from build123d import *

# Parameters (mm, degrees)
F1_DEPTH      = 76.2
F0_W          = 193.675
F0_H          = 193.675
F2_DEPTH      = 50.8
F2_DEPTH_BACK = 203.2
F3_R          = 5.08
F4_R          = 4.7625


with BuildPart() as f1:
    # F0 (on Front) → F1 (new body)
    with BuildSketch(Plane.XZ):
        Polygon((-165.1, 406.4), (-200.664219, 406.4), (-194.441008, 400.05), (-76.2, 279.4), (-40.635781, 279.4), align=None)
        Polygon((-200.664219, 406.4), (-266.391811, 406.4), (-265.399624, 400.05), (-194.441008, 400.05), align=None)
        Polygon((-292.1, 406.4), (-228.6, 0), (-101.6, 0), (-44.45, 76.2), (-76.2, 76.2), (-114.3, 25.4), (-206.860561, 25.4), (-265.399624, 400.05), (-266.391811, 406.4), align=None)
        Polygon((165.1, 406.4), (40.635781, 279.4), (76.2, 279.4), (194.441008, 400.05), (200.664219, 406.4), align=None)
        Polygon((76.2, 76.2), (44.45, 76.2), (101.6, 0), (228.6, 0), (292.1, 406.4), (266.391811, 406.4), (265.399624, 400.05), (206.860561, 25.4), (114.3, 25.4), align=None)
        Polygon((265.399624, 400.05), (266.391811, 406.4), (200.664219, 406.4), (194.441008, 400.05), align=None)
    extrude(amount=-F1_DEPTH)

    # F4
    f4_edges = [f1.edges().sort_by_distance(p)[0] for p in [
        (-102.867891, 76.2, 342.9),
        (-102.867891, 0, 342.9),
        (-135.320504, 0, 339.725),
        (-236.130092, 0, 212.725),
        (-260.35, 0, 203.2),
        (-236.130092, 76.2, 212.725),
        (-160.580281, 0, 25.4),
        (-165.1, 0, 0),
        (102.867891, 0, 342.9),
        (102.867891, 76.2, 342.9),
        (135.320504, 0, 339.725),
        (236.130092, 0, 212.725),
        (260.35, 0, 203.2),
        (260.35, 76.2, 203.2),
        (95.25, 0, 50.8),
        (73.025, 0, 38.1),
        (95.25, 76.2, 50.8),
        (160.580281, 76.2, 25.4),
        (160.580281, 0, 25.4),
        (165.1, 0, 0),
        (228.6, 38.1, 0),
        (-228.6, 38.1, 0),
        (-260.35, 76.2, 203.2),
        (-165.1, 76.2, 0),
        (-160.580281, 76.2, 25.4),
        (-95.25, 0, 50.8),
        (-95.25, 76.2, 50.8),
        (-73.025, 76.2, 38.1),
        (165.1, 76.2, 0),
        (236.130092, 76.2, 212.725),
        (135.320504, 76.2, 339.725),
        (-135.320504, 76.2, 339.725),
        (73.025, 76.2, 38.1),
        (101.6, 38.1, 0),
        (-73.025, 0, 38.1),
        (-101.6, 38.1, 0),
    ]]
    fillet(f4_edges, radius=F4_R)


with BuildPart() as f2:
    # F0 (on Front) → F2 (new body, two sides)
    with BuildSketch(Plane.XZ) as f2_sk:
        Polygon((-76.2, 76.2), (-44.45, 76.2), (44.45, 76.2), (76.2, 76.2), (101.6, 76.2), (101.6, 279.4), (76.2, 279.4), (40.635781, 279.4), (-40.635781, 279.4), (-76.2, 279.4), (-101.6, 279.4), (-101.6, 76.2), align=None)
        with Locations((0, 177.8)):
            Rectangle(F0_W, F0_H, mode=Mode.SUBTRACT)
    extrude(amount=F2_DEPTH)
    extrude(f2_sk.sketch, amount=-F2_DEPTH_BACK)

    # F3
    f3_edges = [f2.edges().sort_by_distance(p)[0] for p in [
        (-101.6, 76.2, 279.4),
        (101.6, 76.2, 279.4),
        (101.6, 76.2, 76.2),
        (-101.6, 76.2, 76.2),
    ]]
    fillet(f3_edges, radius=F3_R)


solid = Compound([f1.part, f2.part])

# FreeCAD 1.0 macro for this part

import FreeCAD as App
import Part
import Sketcher
Q = App.Units.Quantity


def edges_at(feature, points):
    """Names of the edges that pass closest to the given points."""
    edges = feature.Shape.Edges
    near = lambda p: min(range(len(edges)), key=lambda i: edges[i].distToShape(Part.Vertex(*p))[0])
    return sorted({f"Edge{near(p) + 1}" for p in points})

doc = App.newDocument("Part")
params = doc.addObject("Spreadsheet::Sheet", "Params")
for row, (alias, value) in enumerate([
    ("sketch1_width", "5 in"),
    ("pad1_length", "3 in"),
    ("fillet_radius", "0.1875 in"),
    ("sketch2_width", "8 in"),
    ("sketch2_width2", "7.625 in"),
    ("pad2_length", "2 in"),
    ("pad2_length2", "8 in"),
    ("fillet2_radius", "0.2 in"),
], start=1):
    params.set(f"A{row}", alias)
    params.set(f"B{row}", "=" + value)
    params.setAlias(f"B{row}", alias)

body = doc.addObject("PartDesign::Body", "Body")
body.AllowCompound = True

# Sketch on XZ plane
sketch1 = body.newObject("Sketcher::SketchObject", "Sketch")
sketch1.AttachmentSupport = (doc.getObject("XZ_Plane"), [""])
sketch1.MapMode = "FlatFace"
sketch1.addGeometry([
    Part.LineSegment(App.Vector(-165, 406, 0), App.Vector(-292, 406, 0)),  # 0
    Part.LineSegment(App.Vector(-292, 406, 0), App.Vector(-229, 0, 0)),  # 1
    Part.LineSegment(App.Vector(-229, 0, 0), App.Vector(-102, 0, 0)),  # 2
    Part.LineSegment(App.Vector(-102, 0, 0), App.Vector(-44, 76, 0)),  # 3
    Part.LineSegment(App.Vector(-44, 76, 0), App.Vector(-76, 76, 0)),  # 4
    Part.LineSegment(App.Vector(-76, 76, 0), App.Vector(-114, 25, 0)),  # 5
    Part.LineSegment(App.Vector(-114, 25, 0), App.Vector(-207, 25, 0)),  # 6
    Part.LineSegment(App.Vector(-207, 25, 0), App.Vector(-265, 400, 0)),  # 7
    Part.LineSegment(App.Vector(-265, 400, 0), App.Vector(-194, 400, 0)),  # 8
    Part.LineSegment(App.Vector(-194, 400, 0), App.Vector(-76, 279, 0)),  # 9
    Part.LineSegment(App.Vector(-76, 279, 0), App.Vector(-41, 279, 0)),  # 10
    Part.LineSegment(App.Vector(-41, 279, 0), App.Vector(-165, 406, 0)),  # 11
    Part.LineSegment(App.Vector(165, 406, 0), App.Vector(41, 279, 0)),  # 12
    Part.LineSegment(App.Vector(41, 279, 0), App.Vector(76, 279, 0)),  # 13
    Part.LineSegment(App.Vector(76, 279, 0), App.Vector(194, 400, 0)),  # 14
    Part.LineSegment(App.Vector(194, 400, 0), App.Vector(265, 400, 0)),  # 15
    Part.LineSegment(App.Vector(265, 400, 0), App.Vector(207, 25, 0)),  # 16
    Part.LineSegment(App.Vector(207, 25, 0), App.Vector(114, 25, 0)),  # 17
    Part.LineSegment(App.Vector(114, 25, 0), App.Vector(76, 76, 0)),  # 18
    Part.LineSegment(App.Vector(76, 76, 0), App.Vector(44, 76, 0)),  # 19
    Part.LineSegment(App.Vector(44, 76, 0), App.Vector(102, 0, 0)),  # 20
    Part.LineSegment(App.Vector(102, 0, 0), App.Vector(229, 0, 0)),  # 21
    Part.LineSegment(App.Vector(229, 0, 0), App.Vector(292, 406, 0)),  # 22
    Part.LineSegment(App.Vector(292, 406, 0), App.Vector(165, 406, 0)),  # 23
], False)
sketch1.addConstraint([
    Sketcher.Constraint("Coincident", 0, 2, 1, 1),
    Sketcher.Constraint("Coincident", 1, 2, 2, 1),
    Sketcher.Constraint("Coincident", 2, 2, 3, 1),
    Sketcher.Constraint("Coincident", 3, 2, 4, 1),
    Sketcher.Constraint("Coincident", 4, 2, 5, 1),
    Sketcher.Constraint("Coincident", 5, 2, 6, 1),
    Sketcher.Constraint("Coincident", 6, 2, 7, 1),
    Sketcher.Constraint("Coincident", 7, 2, 8, 1),
    Sketcher.Constraint("Coincident", 8, 2, 9, 1),
    Sketcher.Constraint("Coincident", 9, 2, 10, 1),
    Sketcher.Constraint("Coincident", 10, 2, 11, 1),
    Sketcher.Constraint("Coincident", 11, 2, 0, 1),
    Sketcher.Constraint("Coincident", 12, 2, 13, 1),
    Sketcher.Constraint("Coincident", 13, 2, 14, 1),
    Sketcher.Constraint("Coincident", 14, 2, 15, 1),
    Sketcher.Constraint("Coincident", 15, 2, 16, 1),
    Sketcher.Constraint("Coincident", 16, 2, 17, 1),
    Sketcher.Constraint("Coincident", 17, 2, 18, 1),
    Sketcher.Constraint("Coincident", 18, 2, 19, 1),
    Sketcher.Constraint("Coincident", 19, 2, 20, 1),
    Sketcher.Constraint("Coincident", 20, 2, 21, 1),
    Sketcher.Constraint("Coincident", 21, 2, 22, 1),
    Sketcher.Constraint("Coincident", 22, 2, 23, 1),
    Sketcher.Constraint("Coincident", 23, 2, 12, 1),
    Sketcher.Constraint("Horizontal", 0),
    Sketcher.Constraint("Horizontal", 2),
    Sketcher.Constraint("Horizontal", 4),
    Sketcher.Constraint("Horizontal", 6),
    Sketcher.Constraint("Horizontal", 8),
    Sketcher.Constraint("Horizontal", 10),
    Sketcher.Constraint("Horizontal", 13),
    Sketcher.Constraint("Horizontal", 15),
    Sketcher.Constraint("Horizontal", 17),
    Sketcher.Constraint("Horizontal", 19),
    Sketcher.Constraint("Horizontal", 21),
    Sketcher.Constraint("Horizontal", 23),
    Sketcher.Constraint("Symmetric", 2, 2, 20, 2, -1, 1),
    Sketcher.Constraint("Symmetric", 10, 2, 12, 2, -2),
    Sketcher.Constraint("Symmetric", 8, 2, 14, 2, -2),
    Sketcher.Constraint("Symmetric", 6, 2, 16, 2, -2),
    Sketcher.Constraint("Symmetric", 4, 2, 18, 2, -2),
    Sketcher.Constraint("Symmetric", 1, 2, 21, 2, -2),
    Sketcher.Constraint("Symmetric", 0, 2, 22, 2, -2),
    Sketcher.Constraint("Parallel", 3, 5),
    Sketcher.Constraint("Parallel", 1, 7),
    Sketcher.Constraint("Parallel", 9, 11),
    Sketcher.Constraint("Parallel", 12, 14),
    Sketcher.Constraint("Parallel", 18, 20),
    Sketcher.Constraint("Parallel", 16, 22),
    Sketcher.Constraint("Vertical", 4, 2, 9, 2),
    Sketcher.Constraint("Vertical", 13, 2, 18, 2),
    Sketcher.Constraint("Equal", 0, 2),
    Sketcher.Constraint("Equal", 6, 17),
    Sketcher.Constraint("DistanceX", 0, 2, 0, 1, Q("5 in")),
    Sketcher.Constraint("DistanceY", -1, 1, 0, 2, Q("16 in")),
    Sketcher.Constraint("DistanceX", 1, 2, -1, 1, Q("9 in")),
    Sketcher.Constraint("DistanceY", -1, 1, 3, 2, Q("3 in")),
    Sketcher.Constraint("DistanceX", 4, 2, -1, 1, Q("3 in")),
    Sketcher.Constraint("DistanceY", -1, 1, 5, 2, Q("1 in")),
    Sketcher.Constraint("DistanceY", -1, 1, 9, 2, Q("11 in")),
    Sketcher.Constraint("DistanceX", 0, 2, 5, 2, Q("7 in")),
    Sketcher.Constraint("DistanceX", 5, 2, 17, 2, Q("9 in")),
    Sketcher.Constraint("DistanceY", -1, 1, 7, 2, Q("15.75 in")),
    Sketcher.Constraint("DistanceX", 6, 2, 6, 1, Q("92.560561 mm")),
    Sketcher.Constraint("DistanceX", 10, 1, 10, 2, Q("35.564219 mm")),
])
sketch1.setExpression("Constraints[53]", "Params.sketch1_width")
pad1 = body.newObject("PartDesign::Pad", "Pad")
pad1.Profile = sketch1
pad1.setExpression("Length", "Params.pad1_length")
pad1.Reversed = True
doc.recompute()

fillet = body.newObject("PartDesign::Fillet", "Fillet")
fillet.Base = (pad1, edges_at(pad1, [
    (-102.868, 76.2, 342.9),
    (-102.868, 0, 342.9),
    (-135.321, 0, 339.725),
    (-236.13, 0, 212.725),
    (-260.35, 0, 203.2),
    (-236.13, 76.2, 212.725),
    (-160.58, 0, 25.4),
    (-165.1, 0, 0),
    (102.868, 0, 342.9),
    (102.868, 76.2, 342.9),
    (135.321, 0, 339.725),
    (236.13, 0, 212.725),
    (260.35, 0, 203.2),
    (260.35, 76.2, 203.2),
    (95.25, 0, 50.8),
    (73.025, 0, 38.1),
    (95.25, 76.2, 50.8),
    (160.58, 76.2, 25.4),
    (160.58, 0, 25.4),
    (165.1, 0, 0),
    (228.6, 38.1, 0),
    (-228.6, 38.1, 0),
    (-260.35, 76.2, 203.2),
    (-165.1, 76.2, 0),
    (-160.58, 76.2, 25.4),
    (-95.25, 0, 50.8),
    (-95.25, 76.2, 50.8),
    (-73.025, 76.2, 38.1),
    (165.1, 76.2, 0),
    (236.13, 76.2, 212.725),
    (135.321, 76.2, 339.725),
    (-135.321, 76.2, 339.725),
    (73.025, 76.2, 38.1),
    (101.6, 38.1, 0),
    (-73.025, 0, 38.1),
    (-101.6, 38.1, 0),
]))
fillet.setExpression("Radius", "Params.fillet_radius")
body2 = doc.addObject("PartDesign::Body", "Body001")

# Sketch on XZ plane
sketch2 = body2.newObject("Sketcher::SketchObject", "Sketch001")
sketch2.AttachmentSupport = (doc.getObject("XZ_Plane001"), [""])
sketch2.MapMode = "FlatFace"
sketch2.addGeometry([
    Part.LineSegment(App.Vector(102, 76, 0), App.Vector(102, 279, 0)),  # 0
    Part.LineSegment(App.Vector(102, 279, 0), App.Vector(-102, 279, 0)),  # 1
    Part.LineSegment(App.Vector(-102, 279, 0), App.Vector(-102, 76, 0)),  # 2
    Part.LineSegment(App.Vector(-102, 76, 0), App.Vector(102, 76, 0)),  # 3
    Part.LineSegment(App.Vector(97, 81, 0), App.Vector(-97, 81, 0)),  # 4
    Part.LineSegment(App.Vector(-97, 81, 0), App.Vector(-97, 275, 0)),  # 5
    Part.LineSegment(App.Vector(-97, 275, 0), App.Vector(97, 275, 0)),  # 6
    Part.LineSegment(App.Vector(97, 275, 0), App.Vector(97, 81, 0)),  # 7
], False)
sketch2.addConstraint([
    Sketcher.Constraint("Coincident", 0, 2, 1, 1),
    Sketcher.Constraint("Coincident", 1, 2, 2, 1),
    Sketcher.Constraint("Coincident", 2, 2, 3, 1),
    Sketcher.Constraint("Coincident", 3, 2, 0, 1),
    Sketcher.Constraint("Coincident", 4, 2, 5, 1),
    Sketcher.Constraint("Coincident", 5, 2, 6, 1),
    Sketcher.Constraint("Coincident", 6, 2, 7, 1),
    Sketcher.Constraint("Coincident", 7, 2, 4, 1),
    Sketcher.Constraint("Vertical", 0),
    Sketcher.Constraint("Horizontal", 1),
    Sketcher.Constraint("Vertical", 2),
    Sketcher.Constraint("Horizontal", 3),
    Sketcher.Constraint("Horizontal", 4),
    Sketcher.Constraint("Vertical", 5),
    Sketcher.Constraint("Horizontal", 6),
    Sketcher.Constraint("Vertical", 7),
    Sketcher.Constraint("Equal", 3, 0),
    Sketcher.Constraint("Equal", 6, 5),
    Sketcher.Constraint("DistanceX", 1, 2, 1, 1, Q("8 in")),
    Sketcher.Constraint("DistanceX", -1, 1, 0, 2, Q("4 in")),
    Sketcher.Constraint("DistanceY", -1, 1, 0, 2, Q("11 in")),
    Sketcher.Constraint("DistanceX", 4, 2, 4, 1, Q("7.625 in")),
    Sketcher.Constraint("DistanceX", 4, 2, -1, 1, Q("3.8125 in")),
    Sketcher.Constraint("DistanceY", -1, 1, 4, 2, Q("3.1875 in")),
])
sketch2.setExpression("Constraints[18]", "Params.sketch2_width")
sketch2.setExpression("Constraints[21]", "Params.sketch2_width2")
pad2 = body2.newObject("PartDesign::Pad", "Pad001")
pad2.Profile = sketch2
pad2.Type = "TwoLengths"
pad2.setExpression("Length", "Params.pad2_length")
pad2.setExpression("Length2", "Params.pad2_length2")
doc.recompute()

fillet2 = body2.newObject("PartDesign::Fillet", "Fillet001")
fillet2.Base = (pad2, edges_at(pad2, [
    (-101.6, 76.2, 279.4),
    (101.6, 76.2, 279.4),
    (101.6, 76.2, 76.2),
    (-101.6, 76.2, 76.2),
]))
fillet2.setExpression("Radius", "Params.fillet2_radius")

doc.recompute()
